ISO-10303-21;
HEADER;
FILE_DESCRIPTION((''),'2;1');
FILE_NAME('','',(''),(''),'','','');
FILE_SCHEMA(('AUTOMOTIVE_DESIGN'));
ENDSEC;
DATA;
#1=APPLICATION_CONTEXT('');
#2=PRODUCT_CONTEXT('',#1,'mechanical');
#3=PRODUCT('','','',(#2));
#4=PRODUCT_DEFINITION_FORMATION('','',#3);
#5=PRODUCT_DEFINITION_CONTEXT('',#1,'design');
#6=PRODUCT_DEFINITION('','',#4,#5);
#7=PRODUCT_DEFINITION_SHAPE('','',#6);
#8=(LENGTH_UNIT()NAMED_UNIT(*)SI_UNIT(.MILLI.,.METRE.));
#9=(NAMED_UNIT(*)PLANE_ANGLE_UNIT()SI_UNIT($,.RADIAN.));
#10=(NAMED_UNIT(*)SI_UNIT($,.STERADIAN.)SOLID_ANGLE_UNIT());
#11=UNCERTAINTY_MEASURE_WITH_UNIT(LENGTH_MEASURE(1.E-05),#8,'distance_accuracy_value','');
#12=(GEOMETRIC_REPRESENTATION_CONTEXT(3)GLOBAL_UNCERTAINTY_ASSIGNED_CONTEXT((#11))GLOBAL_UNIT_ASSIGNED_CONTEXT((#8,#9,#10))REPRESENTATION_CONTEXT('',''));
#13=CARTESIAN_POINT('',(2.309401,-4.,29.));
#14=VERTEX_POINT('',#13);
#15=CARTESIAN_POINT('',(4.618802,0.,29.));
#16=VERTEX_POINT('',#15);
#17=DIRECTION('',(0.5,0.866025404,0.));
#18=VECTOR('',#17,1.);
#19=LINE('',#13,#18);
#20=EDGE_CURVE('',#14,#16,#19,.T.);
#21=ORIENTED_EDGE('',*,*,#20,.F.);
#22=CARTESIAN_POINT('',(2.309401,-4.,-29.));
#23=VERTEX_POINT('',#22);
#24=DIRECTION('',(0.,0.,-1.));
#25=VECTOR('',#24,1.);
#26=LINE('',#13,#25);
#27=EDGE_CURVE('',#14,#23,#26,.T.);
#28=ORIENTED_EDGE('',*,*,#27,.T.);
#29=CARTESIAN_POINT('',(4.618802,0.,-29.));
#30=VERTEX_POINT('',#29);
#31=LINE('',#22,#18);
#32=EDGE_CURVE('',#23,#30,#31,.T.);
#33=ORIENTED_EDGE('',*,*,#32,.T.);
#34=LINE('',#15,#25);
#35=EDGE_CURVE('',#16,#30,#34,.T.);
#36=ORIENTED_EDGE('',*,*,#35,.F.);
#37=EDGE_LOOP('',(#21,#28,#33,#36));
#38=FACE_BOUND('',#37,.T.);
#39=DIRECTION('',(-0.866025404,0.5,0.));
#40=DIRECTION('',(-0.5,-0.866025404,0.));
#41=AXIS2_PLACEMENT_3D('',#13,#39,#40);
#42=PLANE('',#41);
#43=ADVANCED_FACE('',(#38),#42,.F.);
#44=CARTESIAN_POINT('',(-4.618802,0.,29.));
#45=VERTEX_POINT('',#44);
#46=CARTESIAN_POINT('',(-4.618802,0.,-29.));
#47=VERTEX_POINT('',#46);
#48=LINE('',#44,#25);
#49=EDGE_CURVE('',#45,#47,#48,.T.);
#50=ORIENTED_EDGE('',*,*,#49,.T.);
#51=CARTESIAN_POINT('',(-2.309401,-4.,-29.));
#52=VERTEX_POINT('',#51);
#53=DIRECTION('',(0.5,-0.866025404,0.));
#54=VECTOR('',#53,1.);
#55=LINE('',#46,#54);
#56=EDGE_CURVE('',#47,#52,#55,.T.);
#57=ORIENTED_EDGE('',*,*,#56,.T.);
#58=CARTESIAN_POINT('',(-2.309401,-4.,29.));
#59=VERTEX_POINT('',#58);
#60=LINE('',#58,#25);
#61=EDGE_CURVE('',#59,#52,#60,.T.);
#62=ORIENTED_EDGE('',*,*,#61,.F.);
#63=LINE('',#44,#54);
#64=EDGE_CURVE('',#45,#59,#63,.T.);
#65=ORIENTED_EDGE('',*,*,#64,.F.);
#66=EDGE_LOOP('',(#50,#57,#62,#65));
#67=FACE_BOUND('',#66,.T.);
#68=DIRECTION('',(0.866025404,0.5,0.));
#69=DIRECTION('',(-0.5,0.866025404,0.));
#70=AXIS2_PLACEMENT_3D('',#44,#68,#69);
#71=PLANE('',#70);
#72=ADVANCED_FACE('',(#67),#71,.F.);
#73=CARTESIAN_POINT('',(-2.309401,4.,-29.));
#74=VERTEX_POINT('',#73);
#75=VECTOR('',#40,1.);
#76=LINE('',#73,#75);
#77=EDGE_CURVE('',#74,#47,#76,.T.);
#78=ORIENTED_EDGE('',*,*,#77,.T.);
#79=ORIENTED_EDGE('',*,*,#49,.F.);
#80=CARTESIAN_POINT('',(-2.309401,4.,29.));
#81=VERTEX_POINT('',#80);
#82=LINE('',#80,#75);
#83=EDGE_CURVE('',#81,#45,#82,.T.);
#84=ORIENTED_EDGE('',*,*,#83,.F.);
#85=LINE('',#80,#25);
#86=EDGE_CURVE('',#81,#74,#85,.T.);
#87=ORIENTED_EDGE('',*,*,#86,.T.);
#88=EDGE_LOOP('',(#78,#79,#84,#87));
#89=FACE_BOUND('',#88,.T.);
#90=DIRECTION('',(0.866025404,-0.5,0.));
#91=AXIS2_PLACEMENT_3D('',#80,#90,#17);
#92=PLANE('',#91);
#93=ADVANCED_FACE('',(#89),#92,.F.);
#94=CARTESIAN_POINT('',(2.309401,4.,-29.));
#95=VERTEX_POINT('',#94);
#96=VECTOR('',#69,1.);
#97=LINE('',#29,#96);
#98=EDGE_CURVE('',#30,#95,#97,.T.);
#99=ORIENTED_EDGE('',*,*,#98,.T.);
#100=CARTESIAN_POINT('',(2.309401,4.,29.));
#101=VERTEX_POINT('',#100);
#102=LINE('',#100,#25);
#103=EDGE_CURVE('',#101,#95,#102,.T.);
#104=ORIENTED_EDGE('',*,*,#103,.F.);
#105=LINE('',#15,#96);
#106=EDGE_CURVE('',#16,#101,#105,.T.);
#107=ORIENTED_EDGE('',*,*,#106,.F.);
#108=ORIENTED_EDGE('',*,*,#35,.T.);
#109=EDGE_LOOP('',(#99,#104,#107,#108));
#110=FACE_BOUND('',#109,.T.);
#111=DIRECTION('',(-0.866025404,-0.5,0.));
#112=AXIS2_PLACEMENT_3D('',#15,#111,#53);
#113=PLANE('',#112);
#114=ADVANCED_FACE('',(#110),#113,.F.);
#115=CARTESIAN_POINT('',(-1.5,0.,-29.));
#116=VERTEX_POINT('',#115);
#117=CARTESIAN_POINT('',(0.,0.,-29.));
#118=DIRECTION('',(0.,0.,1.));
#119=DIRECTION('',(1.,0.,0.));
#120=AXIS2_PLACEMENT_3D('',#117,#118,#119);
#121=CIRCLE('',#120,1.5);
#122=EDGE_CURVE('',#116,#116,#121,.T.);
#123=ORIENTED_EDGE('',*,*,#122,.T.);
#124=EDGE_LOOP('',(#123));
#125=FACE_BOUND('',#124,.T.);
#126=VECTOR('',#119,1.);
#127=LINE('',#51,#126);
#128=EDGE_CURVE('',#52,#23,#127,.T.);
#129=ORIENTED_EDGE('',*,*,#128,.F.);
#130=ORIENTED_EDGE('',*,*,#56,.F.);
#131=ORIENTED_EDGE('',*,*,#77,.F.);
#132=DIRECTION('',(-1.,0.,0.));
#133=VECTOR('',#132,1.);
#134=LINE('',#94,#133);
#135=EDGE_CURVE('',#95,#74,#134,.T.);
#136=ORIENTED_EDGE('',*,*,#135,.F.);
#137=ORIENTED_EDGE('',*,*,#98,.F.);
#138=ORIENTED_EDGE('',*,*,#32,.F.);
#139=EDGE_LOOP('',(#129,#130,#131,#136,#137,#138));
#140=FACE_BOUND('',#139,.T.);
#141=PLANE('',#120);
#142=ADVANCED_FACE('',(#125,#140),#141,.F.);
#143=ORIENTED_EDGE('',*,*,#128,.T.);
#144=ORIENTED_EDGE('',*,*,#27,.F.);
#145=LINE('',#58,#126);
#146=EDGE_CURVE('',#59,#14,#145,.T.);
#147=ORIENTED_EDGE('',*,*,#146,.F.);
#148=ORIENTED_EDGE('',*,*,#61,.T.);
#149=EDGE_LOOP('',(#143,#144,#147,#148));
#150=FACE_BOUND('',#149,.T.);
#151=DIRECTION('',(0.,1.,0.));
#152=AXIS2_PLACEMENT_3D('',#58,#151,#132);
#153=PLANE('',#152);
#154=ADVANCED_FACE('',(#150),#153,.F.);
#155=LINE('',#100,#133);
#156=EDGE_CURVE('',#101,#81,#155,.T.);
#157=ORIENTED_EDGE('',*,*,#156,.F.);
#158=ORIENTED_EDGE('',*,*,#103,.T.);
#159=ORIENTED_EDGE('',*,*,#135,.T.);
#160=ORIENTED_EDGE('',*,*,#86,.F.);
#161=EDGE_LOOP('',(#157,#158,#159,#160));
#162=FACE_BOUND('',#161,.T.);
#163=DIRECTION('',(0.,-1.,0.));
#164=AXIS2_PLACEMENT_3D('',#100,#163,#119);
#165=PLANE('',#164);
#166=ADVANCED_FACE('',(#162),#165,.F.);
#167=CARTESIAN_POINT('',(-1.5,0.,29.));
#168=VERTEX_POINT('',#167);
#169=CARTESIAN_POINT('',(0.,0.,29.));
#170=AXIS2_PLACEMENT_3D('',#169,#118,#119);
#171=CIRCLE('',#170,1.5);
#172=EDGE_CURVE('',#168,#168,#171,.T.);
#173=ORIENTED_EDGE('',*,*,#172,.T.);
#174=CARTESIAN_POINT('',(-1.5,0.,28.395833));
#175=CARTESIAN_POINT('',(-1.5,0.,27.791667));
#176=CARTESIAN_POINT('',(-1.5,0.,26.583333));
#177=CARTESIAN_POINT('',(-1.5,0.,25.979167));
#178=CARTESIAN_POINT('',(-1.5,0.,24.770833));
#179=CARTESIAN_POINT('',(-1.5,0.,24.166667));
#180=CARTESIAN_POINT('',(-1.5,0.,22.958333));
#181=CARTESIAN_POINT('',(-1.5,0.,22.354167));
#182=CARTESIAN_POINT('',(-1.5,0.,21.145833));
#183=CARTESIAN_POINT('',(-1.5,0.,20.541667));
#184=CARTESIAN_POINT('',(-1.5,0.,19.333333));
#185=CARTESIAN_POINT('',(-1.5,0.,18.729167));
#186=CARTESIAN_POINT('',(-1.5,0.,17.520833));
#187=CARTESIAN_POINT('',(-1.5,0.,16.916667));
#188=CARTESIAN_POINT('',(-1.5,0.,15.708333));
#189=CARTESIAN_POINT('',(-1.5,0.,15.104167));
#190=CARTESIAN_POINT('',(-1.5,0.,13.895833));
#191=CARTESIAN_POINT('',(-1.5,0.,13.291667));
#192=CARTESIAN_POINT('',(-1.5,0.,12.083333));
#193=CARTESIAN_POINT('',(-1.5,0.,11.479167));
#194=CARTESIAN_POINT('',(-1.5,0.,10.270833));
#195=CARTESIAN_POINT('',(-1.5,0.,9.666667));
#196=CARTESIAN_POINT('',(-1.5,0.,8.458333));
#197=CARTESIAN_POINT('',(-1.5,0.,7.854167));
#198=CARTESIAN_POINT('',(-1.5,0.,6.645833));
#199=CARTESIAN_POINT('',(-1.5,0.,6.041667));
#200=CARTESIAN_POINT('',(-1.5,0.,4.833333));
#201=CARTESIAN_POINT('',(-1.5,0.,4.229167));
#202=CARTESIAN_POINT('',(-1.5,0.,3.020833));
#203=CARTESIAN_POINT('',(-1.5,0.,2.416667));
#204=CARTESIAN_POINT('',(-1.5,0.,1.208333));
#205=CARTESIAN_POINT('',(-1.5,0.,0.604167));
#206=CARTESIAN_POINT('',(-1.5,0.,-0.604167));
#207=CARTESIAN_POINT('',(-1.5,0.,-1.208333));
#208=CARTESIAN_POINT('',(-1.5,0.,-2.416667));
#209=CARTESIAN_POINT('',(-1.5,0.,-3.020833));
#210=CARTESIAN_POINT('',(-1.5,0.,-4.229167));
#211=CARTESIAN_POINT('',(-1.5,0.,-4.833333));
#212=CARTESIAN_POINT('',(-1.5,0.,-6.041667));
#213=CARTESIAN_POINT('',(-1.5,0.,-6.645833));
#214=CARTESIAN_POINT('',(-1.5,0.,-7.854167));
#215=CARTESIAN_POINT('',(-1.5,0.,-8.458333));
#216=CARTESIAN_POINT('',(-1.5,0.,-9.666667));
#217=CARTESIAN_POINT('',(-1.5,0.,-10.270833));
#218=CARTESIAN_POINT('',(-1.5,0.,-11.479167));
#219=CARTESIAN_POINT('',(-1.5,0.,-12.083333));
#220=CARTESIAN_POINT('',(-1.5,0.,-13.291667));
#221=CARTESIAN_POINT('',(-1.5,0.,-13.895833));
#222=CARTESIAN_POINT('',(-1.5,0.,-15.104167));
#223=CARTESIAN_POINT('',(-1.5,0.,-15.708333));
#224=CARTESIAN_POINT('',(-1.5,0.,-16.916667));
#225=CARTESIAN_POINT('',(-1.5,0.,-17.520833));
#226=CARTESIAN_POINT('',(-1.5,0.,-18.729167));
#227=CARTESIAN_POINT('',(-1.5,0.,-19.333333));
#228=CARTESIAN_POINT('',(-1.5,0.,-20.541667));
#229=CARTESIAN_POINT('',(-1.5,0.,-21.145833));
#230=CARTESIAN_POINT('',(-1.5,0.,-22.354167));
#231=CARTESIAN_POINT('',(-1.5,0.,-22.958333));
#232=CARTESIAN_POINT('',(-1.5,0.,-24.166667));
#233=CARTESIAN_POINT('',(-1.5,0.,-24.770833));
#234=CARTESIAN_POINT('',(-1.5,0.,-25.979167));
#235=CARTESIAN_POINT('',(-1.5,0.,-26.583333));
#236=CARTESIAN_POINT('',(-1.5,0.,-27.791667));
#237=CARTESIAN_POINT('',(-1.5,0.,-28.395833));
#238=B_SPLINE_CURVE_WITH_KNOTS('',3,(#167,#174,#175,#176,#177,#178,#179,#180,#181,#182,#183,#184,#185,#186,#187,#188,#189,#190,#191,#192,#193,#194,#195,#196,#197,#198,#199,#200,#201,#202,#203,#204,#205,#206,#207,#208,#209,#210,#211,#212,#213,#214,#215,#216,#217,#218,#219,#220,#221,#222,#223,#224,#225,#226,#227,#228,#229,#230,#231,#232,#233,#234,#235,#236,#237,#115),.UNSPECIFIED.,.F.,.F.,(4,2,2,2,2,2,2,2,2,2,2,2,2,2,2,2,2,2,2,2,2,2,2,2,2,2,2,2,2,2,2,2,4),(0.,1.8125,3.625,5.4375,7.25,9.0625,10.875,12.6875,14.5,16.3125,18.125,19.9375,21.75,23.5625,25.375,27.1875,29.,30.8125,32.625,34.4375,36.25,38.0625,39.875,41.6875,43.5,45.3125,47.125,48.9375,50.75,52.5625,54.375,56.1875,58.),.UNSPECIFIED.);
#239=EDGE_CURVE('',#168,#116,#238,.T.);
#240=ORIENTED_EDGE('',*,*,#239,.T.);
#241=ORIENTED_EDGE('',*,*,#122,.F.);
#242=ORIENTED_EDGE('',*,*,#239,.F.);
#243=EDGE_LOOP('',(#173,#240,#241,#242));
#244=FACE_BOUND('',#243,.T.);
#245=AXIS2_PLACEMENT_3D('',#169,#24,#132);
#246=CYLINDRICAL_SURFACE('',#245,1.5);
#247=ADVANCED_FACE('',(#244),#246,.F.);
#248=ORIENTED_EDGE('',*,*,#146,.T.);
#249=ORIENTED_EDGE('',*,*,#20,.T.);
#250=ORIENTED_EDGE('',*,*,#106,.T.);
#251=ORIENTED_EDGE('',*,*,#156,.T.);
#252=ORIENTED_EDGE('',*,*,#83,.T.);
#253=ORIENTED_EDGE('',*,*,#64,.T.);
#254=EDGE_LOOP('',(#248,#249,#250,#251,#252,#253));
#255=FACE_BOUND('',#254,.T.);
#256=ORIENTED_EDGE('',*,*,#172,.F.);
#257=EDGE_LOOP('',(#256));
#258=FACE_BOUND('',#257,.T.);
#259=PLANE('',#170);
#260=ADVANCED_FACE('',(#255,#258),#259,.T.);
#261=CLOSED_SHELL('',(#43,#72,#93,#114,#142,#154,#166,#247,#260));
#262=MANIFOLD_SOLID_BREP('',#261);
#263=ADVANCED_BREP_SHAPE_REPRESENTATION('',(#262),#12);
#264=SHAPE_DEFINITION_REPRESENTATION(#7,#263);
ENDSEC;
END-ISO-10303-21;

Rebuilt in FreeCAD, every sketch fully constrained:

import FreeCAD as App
import Part
import Sketcher
from FreeCAD import Vector
Q = App.Units.Quantity

doc = App.newDocument("Part")
body = doc.addObject("PartDesign::Body", "Body")

# Sketch on XY plane
sketch1 = doc.addObject("Sketcher::SketchObject", "Sketch")
body.addObject(sketch1)
sketch1.AttachmentSupport = (doc.XY_Plane, [""])
sketch1.MapMode = "FlatFace"
sketch1.addGeometry(Part.LineSegment(Vector(4.6, 0, 0), Vector(2.3, 4, 0)), False)
sketch1.addGeometry(Part.LineSegment(Vector(2.3, 4, 0), Vector(-2.3, 4, 0)), False)
sketch1.addGeometry(Part.LineSegment(Vector(-2.3, 4, 0), Vector(-4.6, 0, 0)), False)
sketch1.addGeometry(Part.LineSegment(Vector(-4.6, 0, 0), Vector(-2.3, -4, 0)), False)
sketch1.addGeometry(Part.LineSegment(Vector(-2.3, -4, 0), Vector(2.3, -4, 0)), False)
sketch1.addGeometry(Part.LineSegment(Vector(2.3, -4, 0), Vector(4.6, 0, 0)), False)
sketch1.addGeometry(Part.Circle(Vector(0, 0, 0), Vector(0, 0, 1), 1.5), False)
sketch1.addConstraint(Sketcher.Constraint("Coincident", 0, 2, 1, 1))
sketch1.addConstraint(Sketcher.Constraint("Coincident", 1, 2, 2, 1))
sketch1.addConstraint(Sketcher.Constraint("Coincident", 2, 2, 3, 1))
sketch1.addConstraint(Sketcher.Constraint("Coincident", 3, 2, 4, 1))
sketch1.addConstraint(Sketcher.Constraint("Coincident", 4, 2, 5, 1))
sketch1.addConstraint(Sketcher.Constraint("Coincident", 5, 2, 0, 1))
sketch1.addConstraint(Sketcher.Constraint("Horizontal", 1))
sketch1.addConstraint(Sketcher.Constraint("Horizontal", 4))
sketch1.addConstraint(Sketcher.Constraint("Coincident", 6, 3, -1, 1))
sketch1.addConstraint(Sketcher.Constraint("Symmetric", 0, 2, 3, 2, -1, 1))
sketch1.addConstraint(Sketcher.Constraint("Symmetric", 2, 2, 5, 2, -1, 1))
sketch1.addConstraint(Sketcher.Constraint("PointOnObject", 2, 2, -1))
sketch1.addConstraint(Sketcher.Constraint("Parallel", 2, 5))
sketch1.addConstraint(Sketcher.Constraint("Vertical", 1, 2, 3, 2))
sketch1.addConstraint(Sketcher.Constraint("Diameter", 6, 3.0))
sketch1.addConstraint(Sketcher.Constraint("Angle", 0, Q("120 deg")))
sketch1.addConstraint(Sketcher.Constraint("DistanceY", -1, 1, 0, 2, 4.0))
sketch1.addConstraint(Sketcher.Constraint("DistanceX", -1, 1, 0, 2, 2.309401))
pad1 = doc.addObject("PartDesign::Pad", "Pad")
body.addObject(pad1)
pad1.Profile = sketch1
pad1.Length = 58
pad1.Midplane = True

doc.recompute()
